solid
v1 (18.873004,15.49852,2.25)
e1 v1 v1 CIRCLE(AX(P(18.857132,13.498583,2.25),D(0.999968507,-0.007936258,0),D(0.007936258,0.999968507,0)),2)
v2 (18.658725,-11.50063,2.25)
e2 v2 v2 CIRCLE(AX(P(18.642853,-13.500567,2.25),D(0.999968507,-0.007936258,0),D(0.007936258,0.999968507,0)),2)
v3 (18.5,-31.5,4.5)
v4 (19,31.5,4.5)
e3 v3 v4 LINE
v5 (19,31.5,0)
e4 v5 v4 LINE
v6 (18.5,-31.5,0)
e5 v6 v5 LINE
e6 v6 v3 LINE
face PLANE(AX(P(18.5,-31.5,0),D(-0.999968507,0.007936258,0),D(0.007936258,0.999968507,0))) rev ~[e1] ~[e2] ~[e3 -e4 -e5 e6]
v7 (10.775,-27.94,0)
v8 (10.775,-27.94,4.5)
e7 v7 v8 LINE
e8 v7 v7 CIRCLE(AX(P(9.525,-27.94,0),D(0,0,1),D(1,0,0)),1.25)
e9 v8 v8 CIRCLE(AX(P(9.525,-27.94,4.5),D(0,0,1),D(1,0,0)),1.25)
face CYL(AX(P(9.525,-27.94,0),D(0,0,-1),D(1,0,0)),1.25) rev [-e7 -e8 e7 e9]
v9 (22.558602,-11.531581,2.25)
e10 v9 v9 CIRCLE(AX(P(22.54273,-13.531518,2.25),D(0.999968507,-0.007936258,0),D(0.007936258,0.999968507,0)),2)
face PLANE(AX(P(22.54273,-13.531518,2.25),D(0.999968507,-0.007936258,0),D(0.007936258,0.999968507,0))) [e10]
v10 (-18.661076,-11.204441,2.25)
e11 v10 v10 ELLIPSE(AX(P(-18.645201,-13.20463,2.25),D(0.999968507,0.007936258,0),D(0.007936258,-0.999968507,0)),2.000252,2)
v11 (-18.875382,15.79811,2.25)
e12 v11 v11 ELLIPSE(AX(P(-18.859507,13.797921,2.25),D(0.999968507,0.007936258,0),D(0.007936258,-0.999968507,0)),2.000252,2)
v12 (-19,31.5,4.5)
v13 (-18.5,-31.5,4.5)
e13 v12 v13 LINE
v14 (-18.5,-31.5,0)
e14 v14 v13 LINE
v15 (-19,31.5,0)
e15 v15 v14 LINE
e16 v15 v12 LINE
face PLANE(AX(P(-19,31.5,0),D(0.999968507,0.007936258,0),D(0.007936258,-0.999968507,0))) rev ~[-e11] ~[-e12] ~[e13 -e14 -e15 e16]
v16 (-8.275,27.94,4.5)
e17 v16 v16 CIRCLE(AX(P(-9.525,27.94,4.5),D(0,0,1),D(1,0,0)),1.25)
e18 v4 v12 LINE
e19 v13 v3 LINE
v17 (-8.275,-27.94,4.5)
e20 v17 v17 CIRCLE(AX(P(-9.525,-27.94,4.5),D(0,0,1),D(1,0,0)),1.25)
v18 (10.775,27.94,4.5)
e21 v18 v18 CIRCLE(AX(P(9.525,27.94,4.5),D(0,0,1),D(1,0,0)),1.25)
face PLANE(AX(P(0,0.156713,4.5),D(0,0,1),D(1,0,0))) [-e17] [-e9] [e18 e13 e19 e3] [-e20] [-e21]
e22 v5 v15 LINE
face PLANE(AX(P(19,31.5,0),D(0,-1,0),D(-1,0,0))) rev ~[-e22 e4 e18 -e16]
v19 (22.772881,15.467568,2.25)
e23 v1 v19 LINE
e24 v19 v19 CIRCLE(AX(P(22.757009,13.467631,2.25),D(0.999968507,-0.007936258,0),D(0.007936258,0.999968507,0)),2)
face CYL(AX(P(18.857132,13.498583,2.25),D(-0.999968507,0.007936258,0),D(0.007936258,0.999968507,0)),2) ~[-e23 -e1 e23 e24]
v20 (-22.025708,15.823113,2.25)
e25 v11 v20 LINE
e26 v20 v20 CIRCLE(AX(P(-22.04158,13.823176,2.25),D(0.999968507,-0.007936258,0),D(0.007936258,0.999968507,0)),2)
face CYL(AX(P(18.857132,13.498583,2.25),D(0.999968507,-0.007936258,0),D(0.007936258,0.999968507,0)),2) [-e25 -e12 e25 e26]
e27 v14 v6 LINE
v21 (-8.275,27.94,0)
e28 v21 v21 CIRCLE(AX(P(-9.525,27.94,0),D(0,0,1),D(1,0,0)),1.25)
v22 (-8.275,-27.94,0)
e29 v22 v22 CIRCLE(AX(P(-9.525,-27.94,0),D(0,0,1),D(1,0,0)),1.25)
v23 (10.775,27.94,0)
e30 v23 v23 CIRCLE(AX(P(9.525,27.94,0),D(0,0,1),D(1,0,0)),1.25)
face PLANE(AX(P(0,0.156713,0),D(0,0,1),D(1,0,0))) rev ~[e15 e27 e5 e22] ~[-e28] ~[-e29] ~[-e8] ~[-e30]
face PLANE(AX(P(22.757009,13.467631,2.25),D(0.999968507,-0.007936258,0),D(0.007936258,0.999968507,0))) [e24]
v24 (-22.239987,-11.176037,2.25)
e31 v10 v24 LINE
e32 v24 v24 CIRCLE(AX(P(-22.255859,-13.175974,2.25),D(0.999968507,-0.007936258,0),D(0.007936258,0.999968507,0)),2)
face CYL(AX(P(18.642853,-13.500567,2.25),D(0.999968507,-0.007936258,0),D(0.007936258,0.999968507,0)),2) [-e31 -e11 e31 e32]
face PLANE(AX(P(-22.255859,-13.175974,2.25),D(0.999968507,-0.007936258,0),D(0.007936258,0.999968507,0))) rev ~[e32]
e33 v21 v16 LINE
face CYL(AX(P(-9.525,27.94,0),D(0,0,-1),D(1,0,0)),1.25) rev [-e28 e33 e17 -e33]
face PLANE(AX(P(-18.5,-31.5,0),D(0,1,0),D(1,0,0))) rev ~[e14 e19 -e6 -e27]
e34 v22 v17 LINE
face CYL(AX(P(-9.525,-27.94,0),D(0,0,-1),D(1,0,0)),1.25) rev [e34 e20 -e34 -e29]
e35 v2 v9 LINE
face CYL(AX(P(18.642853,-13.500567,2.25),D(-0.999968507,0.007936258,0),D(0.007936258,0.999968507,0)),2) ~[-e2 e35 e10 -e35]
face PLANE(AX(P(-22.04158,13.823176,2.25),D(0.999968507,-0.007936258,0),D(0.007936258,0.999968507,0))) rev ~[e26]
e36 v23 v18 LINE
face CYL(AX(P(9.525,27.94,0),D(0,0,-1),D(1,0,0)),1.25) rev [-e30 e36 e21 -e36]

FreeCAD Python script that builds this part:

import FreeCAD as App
import Part
import Sketcher


def add_polygon(sketch, points):
    """Adds a closed chain of lines whose ends are joined by coincident constraints."""
    first, n = sketch.GeometryCount, len(points)
    for a, b in zip(points, points[1:] + points[:1]):
        sketch.addGeometry(Part.LineSegment(App.Vector(*a, 0), App.Vector(*b, 0)), False)
    for i in range(n):
        sketch.addConstraint(Sketcher.Constraint("Coincident", first + i, 2, first + (i + 1) % n, 1))

doc = App.newDocument("Part")
body = doc.addObject("PartDesign::Body", "Body")

# Sketch on XY plane
sketch1 = body.newObject("Sketcher::SketchObject", "Sketch")
sketch1.AttachmentSupport = (doc.getObject("XY_Plane"), [""])
sketch1.MapMode = "FlatFace"
add_polygon(sketch1, [(19, 31.5), (-19, 31.5), (-18.5, -31.5), (18.5, -31.5)])  # lines 0-3
sketch1.addGeometry(Part.Circle(App.Vector(-9.525, -27.94, 0), App.Vector(0, 0, 1), 1.25), False)  # 4
sketch1.addGeometry(Part.Circle(App.Vector(9.525, -27.94, 0), App.Vector(0, 0, 1), 1.25), False)  # 5
sketch1.addGeometry(Part.Circle(App.Vector(-9.525, 27.94, 0), App.Vector(0, 0, 1), 1.25), False)  # 6
sketch1.addGeometry(Part.Circle(App.Vector(9.525, 27.94, 0), App.Vector(0, 0, 1), 1.25), False)  # 7
sketch1.addConstraint([
    Sketcher.Constraint("Horizontal", 0),
    Sketcher.Constraint("Horizontal", 2),
    Sketcher.Constraint("Equal", 4, 5),
    Sketcher.Constraint("Equal", 5, 6),
    Sketcher.Constraint("Equal", 6, 7),
    Sketcher.Constraint("Symmetric", 5, 3, 6, 3, -1, 1),
    Sketcher.Constraint("Symmetric", 4, 3, 7, 3, -1, 1),
    Sketcher.Constraint("Symmetric", 4, 3, 5, 3, -2),
    Sketcher.Constraint("Equal", 1, 3),
    Sketcher.Constraint("Diameter", 4, 2.5),
    Sketcher.Constraint("DistanceX", 0, 2, 0, 1, 38.0),
    Sketcher.Constraint("DistanceX", 2, 1, 2, 2, 37.0),
    Sketcher.Constraint("DistanceX", 0, 2, -1, 1, 19.0),
    Sketcher.Constraint("DistanceY", 1, 2, 0, 2, 63.0),
    Sketcher.Constraint("DistanceY", -1, 1, 0, 2, 31.5),
    Sketcher.Constraint("DistanceY", 4, 3, -1, 1, 27.94),
    Sketcher.Constraint("DistanceX", 4, 3, 5, 3, 19.05),
])
pad1 = body.newObject("PartDesign::Pad", "Pad")
pad1.Profile = sketch1
pad1.Length = 4.5

# Sketch on an angled plane
sketch2 = body.newObject("Sketcher::SketchObject", "Sketch001")
sketch2.Placement = App.Placement(App.Vector(18.748819, -0.1488, 0), App.Rotation(App.Vector(0.007936258, 0.999968507, 0), App.Vector(0, 0, 0.999999999), App.Vector(0.999968507, -0.007936258, 0), "ZXY"))
sketch2.addGeometry([
    Part.Circle(App.Vector(13.647813, 2.25, 0), App.Vector(0, 0, 1), 2),
    Part.Circle(App.Vector(-13.352187, 2.25, 0), App.Vector(0, 0, 1), 2),
], False)
sketch2.addConstraint([
    Sketcher.Constraint("Equal", 0, 1),
    Sketcher.Constraint("Horizontal", 0, 3, 1, 3),
    Sketcher.Constraint("Diameter", 0, 4.0),
    Sketcher.Constraint("DistanceX", 1, 3, 0, 3, 27.0),
    Sketcher.Constraint("DistanceY", -1, 1, 0, 3, 2.25),
    Sketcher.Constraint("DistanceX", -1, 1, 0, 3, 13.647813),
])
pad2 = body.newObject("PartDesign::Pad", "Pad001")
pad2.Profile = sketch2
pad2.Type = "TwoLengths"
pad2.Length = 3.9
pad2.Length2 = 40.9

doc.recompute()
